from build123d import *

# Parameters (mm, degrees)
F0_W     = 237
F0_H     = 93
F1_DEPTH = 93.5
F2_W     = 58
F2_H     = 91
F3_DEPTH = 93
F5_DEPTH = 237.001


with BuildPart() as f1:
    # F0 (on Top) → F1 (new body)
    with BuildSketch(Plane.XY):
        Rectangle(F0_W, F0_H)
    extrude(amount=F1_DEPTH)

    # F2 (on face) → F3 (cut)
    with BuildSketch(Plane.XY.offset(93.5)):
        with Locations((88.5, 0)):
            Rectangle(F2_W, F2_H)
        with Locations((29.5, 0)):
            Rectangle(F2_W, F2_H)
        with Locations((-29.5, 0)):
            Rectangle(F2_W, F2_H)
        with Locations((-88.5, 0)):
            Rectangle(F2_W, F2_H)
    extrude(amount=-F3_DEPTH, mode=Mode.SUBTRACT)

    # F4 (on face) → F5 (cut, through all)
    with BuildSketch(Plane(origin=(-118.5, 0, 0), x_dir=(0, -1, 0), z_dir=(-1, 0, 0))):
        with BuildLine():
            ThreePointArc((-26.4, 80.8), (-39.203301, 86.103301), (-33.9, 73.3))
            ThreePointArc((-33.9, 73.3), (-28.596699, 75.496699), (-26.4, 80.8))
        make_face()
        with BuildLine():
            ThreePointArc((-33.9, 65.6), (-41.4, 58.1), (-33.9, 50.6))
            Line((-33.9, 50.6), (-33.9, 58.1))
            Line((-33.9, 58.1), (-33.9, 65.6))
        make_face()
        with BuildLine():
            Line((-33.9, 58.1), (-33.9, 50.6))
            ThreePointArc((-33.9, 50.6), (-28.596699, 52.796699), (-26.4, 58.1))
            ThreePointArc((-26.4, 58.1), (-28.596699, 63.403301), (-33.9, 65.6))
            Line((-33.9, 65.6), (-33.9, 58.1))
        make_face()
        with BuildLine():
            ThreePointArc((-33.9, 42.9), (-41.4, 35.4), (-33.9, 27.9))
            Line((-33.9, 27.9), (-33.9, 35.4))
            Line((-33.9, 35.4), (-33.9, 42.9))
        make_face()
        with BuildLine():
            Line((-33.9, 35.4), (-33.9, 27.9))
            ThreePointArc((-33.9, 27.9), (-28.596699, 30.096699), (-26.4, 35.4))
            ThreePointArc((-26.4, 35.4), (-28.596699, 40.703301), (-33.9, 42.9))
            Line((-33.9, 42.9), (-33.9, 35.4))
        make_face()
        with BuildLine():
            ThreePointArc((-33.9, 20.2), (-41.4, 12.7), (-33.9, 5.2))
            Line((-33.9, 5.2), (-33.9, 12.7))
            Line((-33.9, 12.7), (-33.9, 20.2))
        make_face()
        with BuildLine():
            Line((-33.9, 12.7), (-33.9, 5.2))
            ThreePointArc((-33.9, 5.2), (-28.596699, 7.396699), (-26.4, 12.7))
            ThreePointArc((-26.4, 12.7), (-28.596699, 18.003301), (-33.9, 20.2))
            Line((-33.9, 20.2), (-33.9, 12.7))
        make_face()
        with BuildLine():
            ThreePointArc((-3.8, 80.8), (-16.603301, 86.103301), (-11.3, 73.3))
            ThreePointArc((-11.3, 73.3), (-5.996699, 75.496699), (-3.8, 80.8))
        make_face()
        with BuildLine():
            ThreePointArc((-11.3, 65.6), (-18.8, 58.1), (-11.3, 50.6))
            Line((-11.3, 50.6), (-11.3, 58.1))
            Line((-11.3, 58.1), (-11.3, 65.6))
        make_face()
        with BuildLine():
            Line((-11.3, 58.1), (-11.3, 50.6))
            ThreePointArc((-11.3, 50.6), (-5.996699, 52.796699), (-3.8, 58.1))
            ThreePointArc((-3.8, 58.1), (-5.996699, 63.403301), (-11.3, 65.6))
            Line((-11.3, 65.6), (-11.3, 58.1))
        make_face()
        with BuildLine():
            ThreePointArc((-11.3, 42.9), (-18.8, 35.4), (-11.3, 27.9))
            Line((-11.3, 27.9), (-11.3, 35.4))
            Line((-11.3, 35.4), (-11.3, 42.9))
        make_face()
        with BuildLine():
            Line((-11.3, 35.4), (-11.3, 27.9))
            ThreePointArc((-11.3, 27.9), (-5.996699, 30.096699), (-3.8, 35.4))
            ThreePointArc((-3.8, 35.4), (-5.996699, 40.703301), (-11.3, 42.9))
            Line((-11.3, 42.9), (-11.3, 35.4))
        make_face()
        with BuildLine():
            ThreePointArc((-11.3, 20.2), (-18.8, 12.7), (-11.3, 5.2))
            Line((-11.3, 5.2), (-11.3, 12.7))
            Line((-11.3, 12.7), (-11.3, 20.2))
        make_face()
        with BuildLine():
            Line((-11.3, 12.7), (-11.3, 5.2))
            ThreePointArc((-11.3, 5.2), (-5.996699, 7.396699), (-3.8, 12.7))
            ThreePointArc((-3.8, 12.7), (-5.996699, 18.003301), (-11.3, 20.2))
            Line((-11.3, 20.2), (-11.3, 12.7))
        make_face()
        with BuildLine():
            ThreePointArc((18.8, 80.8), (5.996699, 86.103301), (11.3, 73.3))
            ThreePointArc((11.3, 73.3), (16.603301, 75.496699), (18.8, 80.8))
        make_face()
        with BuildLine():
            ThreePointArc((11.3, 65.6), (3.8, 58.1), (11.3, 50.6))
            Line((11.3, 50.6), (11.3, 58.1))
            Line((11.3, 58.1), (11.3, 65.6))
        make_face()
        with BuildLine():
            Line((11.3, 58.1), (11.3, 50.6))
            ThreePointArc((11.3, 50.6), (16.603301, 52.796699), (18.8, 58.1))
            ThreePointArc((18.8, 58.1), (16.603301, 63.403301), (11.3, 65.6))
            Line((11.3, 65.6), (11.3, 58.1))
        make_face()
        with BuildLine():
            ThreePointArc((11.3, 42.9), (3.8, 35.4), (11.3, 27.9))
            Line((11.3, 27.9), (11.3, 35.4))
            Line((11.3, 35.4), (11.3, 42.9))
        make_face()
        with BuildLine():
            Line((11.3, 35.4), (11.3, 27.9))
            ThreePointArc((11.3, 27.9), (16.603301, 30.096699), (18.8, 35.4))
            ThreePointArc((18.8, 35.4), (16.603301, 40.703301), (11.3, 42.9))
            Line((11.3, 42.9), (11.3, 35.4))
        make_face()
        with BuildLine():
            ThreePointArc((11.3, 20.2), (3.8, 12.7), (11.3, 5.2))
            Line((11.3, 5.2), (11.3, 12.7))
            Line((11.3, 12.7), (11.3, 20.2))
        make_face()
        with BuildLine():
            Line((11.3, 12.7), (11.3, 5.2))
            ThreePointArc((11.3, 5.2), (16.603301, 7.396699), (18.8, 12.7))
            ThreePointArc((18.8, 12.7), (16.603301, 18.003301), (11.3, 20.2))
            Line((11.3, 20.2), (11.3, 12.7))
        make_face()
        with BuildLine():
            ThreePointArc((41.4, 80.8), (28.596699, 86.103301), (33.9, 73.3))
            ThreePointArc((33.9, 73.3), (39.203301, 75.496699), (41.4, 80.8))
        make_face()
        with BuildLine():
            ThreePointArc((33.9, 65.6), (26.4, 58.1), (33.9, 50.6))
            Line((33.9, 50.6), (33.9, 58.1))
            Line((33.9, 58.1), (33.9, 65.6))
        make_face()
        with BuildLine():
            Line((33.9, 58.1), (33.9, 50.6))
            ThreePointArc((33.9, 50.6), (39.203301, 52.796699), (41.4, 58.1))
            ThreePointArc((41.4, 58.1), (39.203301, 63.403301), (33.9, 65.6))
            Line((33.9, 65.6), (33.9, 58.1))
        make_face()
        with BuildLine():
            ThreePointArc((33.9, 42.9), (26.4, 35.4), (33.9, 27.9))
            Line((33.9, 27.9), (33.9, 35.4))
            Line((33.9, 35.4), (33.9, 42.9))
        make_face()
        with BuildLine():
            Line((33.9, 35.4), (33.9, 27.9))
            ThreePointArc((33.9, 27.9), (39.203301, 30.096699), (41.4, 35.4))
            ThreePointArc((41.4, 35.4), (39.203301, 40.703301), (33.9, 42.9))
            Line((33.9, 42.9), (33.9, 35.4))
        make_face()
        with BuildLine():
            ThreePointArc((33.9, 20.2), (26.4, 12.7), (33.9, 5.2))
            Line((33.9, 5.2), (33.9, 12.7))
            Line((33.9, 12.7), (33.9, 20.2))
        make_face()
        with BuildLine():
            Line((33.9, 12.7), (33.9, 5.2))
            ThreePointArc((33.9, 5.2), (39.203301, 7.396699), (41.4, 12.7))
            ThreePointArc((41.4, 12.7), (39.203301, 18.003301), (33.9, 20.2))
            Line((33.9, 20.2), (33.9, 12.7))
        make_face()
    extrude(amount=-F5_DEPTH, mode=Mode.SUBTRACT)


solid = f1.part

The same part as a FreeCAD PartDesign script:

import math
import FreeCAD as App
import Part
import Sketcher

V = App.Vector
Q = App.Units.Quantity

doc = App.newDocument("Part")
body = doc.addObject("PartDesign::Body", "Body")

sketch1 = doc.addObject("Sketcher::SketchObject", "Sketch")
body.addObject(sketch1)
sketch1.AttachmentSupport = (doc.XY_Plane, [""])
sketch1.MapMode = "FlatFace"
sketch1.addGeometry(Part.LineSegment(V(-118, 46, 0), V(-118, -46, 0)), False)
sketch1.addGeometry(Part.LineSegment(V(-118, -46, 0), V(118, -46, 0)), False)
sketch1.addGeometry(Part.LineSegment(V(118, -46, 0), V(118, 46, 0)), False)
sketch1.addGeometry(Part.LineSegment(V(118, 46, 0), V(-118, 46, 0)), False)
sketch1.addConstraint(Sketcher.Constraint("Coincident", 0, 2, 1, 1))
sketch1.addConstraint(Sketcher.Constraint("Coincident", 1, 2, 2, 1))
sketch1.addConstraint(Sketcher.Constraint("Coincident", 2, 2, 3, 1))
sketch1.addConstraint(Sketcher.Constraint("Coincident", 3, 2, 0, 1))
sketch1.addConstraint(Sketcher.Constraint("Vertical", 0))
sketch1.addConstraint(Sketcher.Constraint("Horizontal", 1))
sketch1.addConstraint(Sketcher.Constraint("Vertical", 2))
sketch1.addConstraint(Sketcher.Constraint("Horizontal", 3))
sketch1.addConstraint(Sketcher.Constraint("Symmetric", 0, 2, 2, 2, -1, 1))
sketch1.addConstraint(Sketcher.Constraint("DistanceX", 1, 1, 1, 2, Q("237 mm")))
sketch1.addConstraint(Sketcher.Constraint("DistanceY", 0, 2, 0, 1, Q("93 mm")))
pad1 = doc.addObject("PartDesign::Pad", "Pad")
body.addObject(pad1)
pad1.Profile = sketch1
pad1.Length = 93.5

sketch2 = doc.addObject("Sketcher::SketchObject", "Sketch001")
body.addObject(sketch2)
sketch2.AttachmentSupport = (doc.XY_Plane, [""])
sketch2.MapMode = "FlatFace"
sketch2.AttachmentOffset = App.Placement(V(0, 0, 93.5), App.Rotation())
sketch2.addGeometry(Part.LineSegment(V(60, 46, 0), V(60, -46, 0)), False)
sketch2.addGeometry(Part.LineSegment(V(60, -46, 0), V(118, -46, 0)), False)
sketch2.addGeometry(Part.LineSegment(V(118, -46, 0), V(118, 46, 0)), False)
sketch2.addGeometry(Part.LineSegment(V(118, 46, 0), V(60, 46, 0)), False)
sketch2.addGeometry(Part.LineSegment(V(0, 46, 0), V(0, -46, 0)), False)
sketch2.addGeometry(Part.LineSegment(V(0, -46, 0), V(58, -46, 0)), False)
sketch2.addGeometry(Part.LineSegment(V(58, -46, 0), V(58, 46, 0)), False)
sketch2.addGeometry(Part.LineSegment(V(58, 46, 0), V(0, 46, 0)), False)
sketch2.addGeometry(Part.LineSegment(V(-58, 46, 0), V(-58, -46, 0)), False)
sketch2.addGeometry(Part.LineSegment(V(-58, -46, 0), V(0, -46, 0)), False)
sketch2.addGeometry(Part.LineSegment(V(0, -46, 0), V(0, 46, 0)), False)
sketch2.addGeometry(Part.LineSegment(V(0, 46, 0), V(-58, 46, 0)), False)
sketch2.addGeometry(Part.LineSegment(V(-118, 46, 0), V(-118, -46, 0)), False)
sketch2.addGeometry(Part.LineSegment(V(-118, -46, 0), V(-60, -46, 0)), False)
sketch2.addGeometry(Part.LineSegment(V(-60, -46, 0), V(-60, 46, 0)), False)
sketch2.addGeometry(Part.LineSegment(V(-60, 46, 0), V(-118, 46, 0)), False)
sketch2.addConstraint(Sketcher.Constraint("Coincident", 0, 2, 1, 1))
sketch2.addConstraint(Sketcher.Constraint("Coincident", 1, 2, 2, 1))
sketch2.addConstraint(Sketcher.Constraint("Coincident", 2, 2, 3, 1))
sketch2.addConstraint(Sketcher.Constraint("Coincident", 3, 2, 0, 1))
sketch2.addConstraint(Sketcher.Constraint("Coincident", 4, 2, 5, 1))
sketch2.addConstraint(Sketcher.Constraint("Coincident", 5, 2, 6, 1))
sketch2.addConstraint(Sketcher.Constraint("Coincident", 6, 2, 7, 1))
sketch2.addConstraint(Sketcher.Constraint("Coincident", 7, 2, 4, 1))
sketch2.addConstraint(Sketcher.Constraint("Coincident", 8, 2, 9, 1))
sketch2.addConstraint(Sketcher.Constraint("Coincident", 9, 2, 10, 1))
sketch2.addConstraint(Sketcher.Constraint("Coincident", 10, 2, 11, 1))
sketch2.addConstraint(Sketcher.Constraint("Coincident", 11, 2, 8, 1))
sketch2.addConstraint(Sketcher.Constraint("Coincident", 12, 2, 13, 1))
sketch2.addConstraint(Sketcher.Constraint("Coincident", 13, 2, 14, 1))
sketch2.addConstraint(Sketcher.Constraint("Coincident", 14, 2, 15, 1))
sketch2.addConstraint(Sketcher.Constraint("Coincident", 15, 2, 12, 1))
sketch2.addConstraint(Sketcher.Constraint("Vertical", 0))
sketch2.addConstraint(Sketcher.Constraint("Horizontal", 1))
sketch2.addConstraint(Sketcher.Constraint("Vertical", 2))
sketch2.addConstraint(Sketcher.Constraint("Horizontal", 3))
sketch2.addConstraint(Sketcher.Constraint("Vertical", 4))
sketch2.addConstraint(Sketcher.Constraint("Horizontal", 5))
sketch2.addConstraint(Sketcher.Constraint("Vertical", 6))
sketch2.addConstraint(Sketcher.Constraint("Horizontal", 7))
sketch2.addConstraint(Sketcher.Constraint("Vertical", 8))
sketch2.addConstraint(Sketcher.Constraint("Horizontal", 9))
sketch2.addConstraint(Sketcher.Constraint("Vertical", 10))
sketch2.addConstraint(Sketcher.Constraint("Horizontal", 11))
sketch2.addConstraint(Sketcher.Constraint("Vertical", 12))
sketch2.addConstraint(Sketcher.Constraint("Horizontal", 13))
sketch2.addConstraint(Sketcher.Constraint("Vertical", 14))
sketch2.addConstraint(Sketcher.Constraint("Horizontal", 15))
sketch2.addConstraint(Sketcher.Constraint("Symmetric", 6, 2, 8, 2, -1, 1))
sketch2.addConstraint(Sketcher.Constraint("Symmetric", 4, 2, 10, 2, -1, 1))
sketch2.addConstraint(Sketcher.Constraint("Symmetric", 2, 2, 12, 2, -1, 1))
sketch2.addConstraint(Sketcher.Constraint("Symmetric", 0, 2, 14, 2, -1, 1))
sketch2.addConstraint(Sketcher.Constraint("Horizontal", 1, 2, 4, 2))
sketch2.addConstraint(Sketcher.Constraint("Horizontal", 3, 2, 6, 2))
sketch2.addConstraint(Sketcher.Constraint("Horizontal", 5, 2, 8, 2))
sketch2.addConstraint(Sketcher.Constraint("Equal", 3, 5))
sketch2.addConstraint(Sketcher.Constraint("DistanceX", 1, 1, 1, 2, Q("58 mm")))
sketch2.addConstraint(Sketcher.Constraint("DistanceY", 0, 2, 0, 1, Q("91 mm")))
sketch2.addConstraint(Sketcher.Constraint("DistanceX", 4, 2, 0, 2, Q("59 mm")))
sketch2.addConstraint(Sketcher.Constraint("DistanceX", 8, 2, 4, 2, Q("59 mm")))
pocket1 = doc.addObject("PartDesign::Pocket", "Pocket")
body.addObject(pocket1)
pocket1.Profile = sketch2
pocket1.Length = 93

sketch3 = doc.addObject("Sketcher::SketchObject", "Sketch002")
body.addObject(sketch3)
sketch3.AttachmentSupport = (doc.YZ_Plane, [""])
sketch3.MapMode = "FlatFace"
sketch3.AttachmentOffset = App.Placement(V(0, 0, -118.5), App.Rotation())
sketch3.addGeometry(Part.ArcOfCircle(Part.Circle(V(34, 81, 0), V(0, 0, 1), 8), math.radians(-90), math.radians(180)), False)
sketch3.addGeometry(Part.ArcOfCircle(Part.Circle(V(34, 81, 0), V(0, 0, 1), 7), math.radians(180), math.radians(270)), False)
sketch3.addGeometry(Part.ArcOfCircle(Part.Circle(V(34, 58, 0), V(0, 0, 1), 8), math.radians(-90), math.radians(90)), False)
sketch3.addGeometry(Part.ArcOfCircle(Part.Circle(V(34, 58, 0), V(0, 0, 1), 7), math.radians(180), math.radians(270)), False)
sketch3.addGeometry(Part.ArcOfCircle(Part.Circle(V(34, 58, 0), V(0, 0, 1), 7), math.radians(90), math.radians(180)), False)
sketch3.addGeometry(Part.ArcOfCircle(Part.Circle(V(34, 35, 0), V(0, 0, 1), 8), math.radians(-90), math.radians(90)), False)
sketch3.addGeometry(Part.ArcOfCircle(Part.Circle(V(34, 35, 0), V(0, 0, 1), 7), math.radians(180), math.radians(270)), False)
sketch3.addGeometry(Part.ArcOfCircle(Part.Circle(V(34, 35, 0), V(0, 0, 1), 7), math.radians(90), math.radians(180)), False)
sketch3.addGeometry(Part.ArcOfCircle(Part.Circle(V(34, 13, 0), V(0, 0, 1), 8), math.radians(-90), math.radians(90)), False)
sketch3.addGeometry(Part.ArcOfCircle(Part.Circle(V(34, 13, 0), V(0, 0, 1), 7), math.radians(180), math.radians(270)), False)
sketch3.addGeometry(Part.ArcOfCircle(Part.Circle(V(34, 13, 0), V(0, 0, 1), 7), math.radians(90), math.radians(180)), False)
sketch3.addGeometry(Part.ArcOfCircle(Part.Circle(V(11, 81, 0), V(0, 0, 1), 8), math.radians(-90), math.radians(180)), False)
sketch3.addGeometry(Part.ArcOfCircle(Part.Circle(V(11, 81, 0), V(0, 0, 1), 7), math.radians(180), math.radians(270)), False)
sketch3.addGeometry(Part.ArcOfCircle(Part.Circle(V(11, 58, 0), V(0, 0, 1), 8), math.radians(-90), math.radians(90)), False)
sketch3.addGeometry(Part.ArcOfCircle(Part.Circle(V(11, 58, 0), V(0, 0, 1), 7), math.radians(180), math.radians(270)), False)
sketch3.addGeometry(Part.ArcOfCircle(Part.Circle(V(11, 58, 0), V(0, 0, 1), 7), math.radians(90), math.radians(180)), False)
sketch3.addGeometry(Part.ArcOfCircle(Part.Circle(V(11, 35, 0), V(0, 0, 1), 8), math.radians(-90), math.radians(90)), False)
sketch3.addGeometry(Part.ArcOfCircle(Part.Circle(V(11, 35, 0), V(0, 0, 1), 7), math.radians(180), math.radians(270)), False)
sketch3.addGeometry(Part.ArcOfCircle(Part.Circle(V(11, 35, 0), V(0, 0, 1), 7), math.radians(90), math.radians(180)), False)
sketch3.addGeometry(Part.ArcOfCircle(Part.Circle(V(11, 13, 0), V(0, 0, 1), 8), math.radians(-90), math.radians(90)), False)
sketch3.addGeometry(Part.ArcOfCircle(Part.Circle(V(11, 13, 0), V(0, 0, 1), 7), math.radians(180), math.radians(270)), False)
sketch3.addGeometry(Part.ArcOfCircle(Part.Circle(V(11, 13, 0), V(0, 0, 1), 7), math.radians(90), math.radians(180)), False)
sketch3.addGeometry(Part.ArcOfCircle(Part.Circle(V(-11, 81, 0), V(0, 0, 1), 8), math.radians(-90), math.radians(180)), False)
sketch3.addGeometry(Part.ArcOfCircle(Part.Circle(V(-11, 81, 0), V(0, 0, 1), 7), math.radians(180), math.radians(270)), False)
sketch3.addGeometry(Part.ArcOfCircle(Part.Circle(V(-11, 58, 0), V(0, 0, 1), 8), math.radians(-90), math.radians(90)), False)
sketch3.addGeometry(Part.ArcOfCircle(Part.Circle(V(-11, 58, 0), V(0, 0, 1), 7), math.radians(180), math.radians(270)), False)
sketch3.addGeometry(Part.ArcOfCircle(Part.Circle(V(-11, 58, 0), V(0, 0, 1), 7), math.radians(90), math.radians(180)), False)
sketch3.addGeometry(Part.ArcOfCircle(Part.Circle(V(-11, 35, 0), V(0, 0, 1), 8), math.radians(-90), math.radians(90)), False)
sketch3.addGeometry(Part.ArcOfCircle(Part.Circle(V(-11, 35, 0), V(0, 0, 1), 7), math.radians(180), math.radians(270)), False)
sketch3.addGeometry(Part.ArcOfCircle(Part.Circle(V(-11, 35, 0), V(0, 0, 1), 7), math.radians(90), math.radians(180)), False)
sketch3.addGeometry(Part.ArcOfCircle(Part.Circle(V(-11, 13, 0), V(0, 0, 1), 8), math.radians(-90), math.radians(90)), False)
sketch3.addGeometry(Part.ArcOfCircle(Part.Circle(V(-11, 13, 0), V(0, 0, 1), 7), math.radians(180), math.radians(270)), False)
sketch3.addGeometry(Part.ArcOfCircle(Part.Circle(V(-11, 13, 0), V(0, 0, 1), 7), math.radians(90), math.radians(180)), False)
sketch3.addGeometry(Part.ArcOfCircle(Part.Circle(V(-34, 81, 0), V(0, 0, 1), 8), math.radians(-90), math.radians(180)), False)
sketch3.addGeometry(Part.ArcOfCircle(Part.Circle(V(-34, 81, 0), V(0, 0, 1), 7), math.radians(180), math.radians(270)), False)
sketch3.addGeometry(Part.ArcOfCircle(Part.Circle(V(-34, 58, 0), V(0, 0, 1), 8), math.radians(-90), math.radians(90)), False)
sketch3.addGeometry(Part.ArcOfCircle(Part.Circle(V(-34, 58, 0), V(0, 0, 1), 7), math.radians(180), math.radians(270)), False)
sketch3.addGeometry(Part.ArcOfCircle(Part.Circle(V(-34, 58, 0), V(0, 0, 1), 7), math.radians(90), math.radians(180)), False)
sketch3.addGeometry(Part.ArcOfCircle(Part.Circle(V(-34, 35, 0), V(0, 0, 1), 8), math.radians(-90), math.radians(90)), False)
sketch3.addGeometry(Part.ArcOfCircle(Part.Circle(V(-34, 35, 0), V(0, 0, 1), 7), math.radians(180), math.radians(270)), False)
sketch3.addGeometry(Part.ArcOfCircle(Part.Circle(V(-34, 35, 0), V(0, 0, 1), 7), math.radians(90), math.radians(180)), False)
sketch3.addGeometry(Part.ArcOfCircle(Part.Circle(V(-34, 13, 0), V(0, 0, 1), 8), math.radians(-90), math.radians(90)), False)
sketch3.addGeometry(Part.ArcOfCircle(Part.Circle(V(-34, 13, 0), V(0, 0, 1), 7), math.radians(180), math.radians(270)), False)
sketch3.addGeometry(Part.ArcOfCircle(Part.Circle(V(-34, 13, 0), V(0, 0, 1), 7), math.radians(90), math.radians(180)), False)
sketch3.addConstraint(Sketcher.Constraint("Tangent", 0, 1, 1, 2))
sketch3.addConstraint(Sketcher.Constraint("Coincident", 1, 1, 0, 2))
sketch3.addConstraint(Sketcher.Constraint("Tangent", 2, 1, 3, 2))
sketch3.addConstraint(Sketcher.Constraint("Tangent", 3, 1, 4, 2))
sketch3.addConstraint(Sketcher.Constraint("Tangent", 4, 1, 2, 2))
sketch3.addConstraint(Sketcher.Constraint("Tangent", 5, 1, 6, 2))
sketch3.addConstraint(Sketcher.Constraint("Tangent", 6, 1, 7, 2))
sketch3.addConstraint(Sketcher.Constraint("Tangent", 7, 1, 5, 2))
sketch3.addConstraint(Sketcher.Constraint("Tangent", 8, 1, 9, 2))
sketch3.addConstraint(Sketcher.Constraint("Tangent", 9, 1, 10, 2))
sketch3.addConstraint(Sketcher.Constraint("Tangent", 10, 1, 8, 2))
sketch3.addConstraint(Sketcher.Constraint("Tangent", 11, 1, 12, 2))
sketch3.addConstraint(Sketcher.Constraint("Coincident", 12, 1, 11, 2))
sketch3.addConstraint(Sketcher.Constraint("Tangent", 13, 1, 14, 2))
sketch3.addConstraint(Sketcher.Constraint("Tangent", 14, 1, 15, 2))
sketch3.addConstraint(Sketcher.Constraint("Tangent", 15, 1, 13, 2))
sketch3.addConstraint(Sketcher.Constraint("Tangent", 16, 1, 17, 2))
sketch3.addConstraint(Sketcher.Constraint("Tangent", 17, 1, 18, 2))
sketch3.addConstraint(Sketcher.Constraint("Tangent", 18, 1, 16, 2))
sketch3.addConstraint(Sketcher.Constraint("Tangent", 19, 1, 20, 2))
sketch3.addConstraint(Sketcher.Constraint("Tangent", 20, 1, 21, 2))
sketch3.addConstraint(Sketcher.Constraint("Tangent", 21, 1, 19, 2))
sketch3.addConstraint(Sketcher.Constraint("Tangent", 22, 1, 23, 2))
sketch3.addConstraint(Sketcher.Constraint("Coincident", 23, 1, 22, 2))
sketch3.addConstraint(Sketcher.Constraint("Tangent", 24, 1, 25, 2))
sketch3.addConstraint(Sketcher.Constraint("Tangent", 25, 1, 26, 2))
sketch3.addConstraint(Sketcher.Constraint("Tangent", 26, 1, 24, 2))
sketch3.addConstraint(Sketcher.Constraint("Tangent", 27, 1, 28, 2))
sketch3.addConstraint(Sketcher.Constraint("Tangent", 28, 1, 29, 2))
sketch3.addConstraint(Sketcher.Constraint("Tangent", 29, 1, 27, 2))
sketch3.addConstraint(Sketcher.Constraint("Tangent", 30, 1, 31, 2))
sketch3.addConstraint(Sketcher.Constraint("Tangent", 31, 1, 32, 2))
sketch3.addConstraint(Sketcher.Constraint("Tangent", 32, 1, 30, 2))
sketch3.addConstraint(Sketcher.Constraint("Tangent", 33, 1, 34, 2))
sketch3.addConstraint(Sketcher.Constraint("Coincident", 34, 1, 33, 2))
sketch3.addConstraint(Sketcher.Constraint("Tangent", 35, 1, 36, 2))
sketch3.addConstraint(Sketcher.Constraint("Tangent", 36, 1, 37, 2))
sketch3.addConstraint(Sketcher.Constraint("Tangent", 37, 1, 35, 2))
sketch3.addConstraint(Sketcher.Constraint("Tangent", 38, 1, 39, 2))
sketch3.addConstraint(Sketcher.Constraint("Tangent", 39, 1, 40, 2))
sketch3.addConstraint(Sketcher.Constraint("Tangent", 40, 1, 38, 2))
sketch3.addConstraint(Sketcher.Constraint("Tangent", 41, 1, 42, 2))
sketch3.addConstraint(Sketcher.Constraint("Tangent", 42, 1, 43, 2))
sketch3.addConstraint(Sketcher.Constraint("Tangent", 43, 1, 41, 2))
sketch3.addConstraint(Sketcher.Constraint("Equal", 1, 2))
sketch3.addConstraint(Sketcher.Constraint("Equal", 4, 5))
sketch3.addConstraint(Sketcher.Constraint("Equal", 7, 8))
sketch3.addConstraint(Sketcher.Constraint("Equal", 10, 11))
sketch3.addConstraint(Sketcher.Constraint("Equal", 12, 13))
sketch3.addConstraint(Sketcher.Constraint("Equal", 15, 16))
sketch3.addConstraint(Sketcher.Constraint("Equal", 18, 19))
sketch3.addConstraint(Sketcher.Constraint("Equal", 21, 22))
sketch3.addConstraint(Sketcher.Constraint("Equal", 23, 24))
sketch3.addConstraint(Sketcher.Constraint("Equal", 26, 27))
sketch3.addConstraint(Sketcher.Constraint("Equal", 29, 30))
sketch3.addConstraint(Sketcher.Constraint("Equal", 32, 33))
sketch3.addConstraint(Sketcher.Constraint("Equal", 34, 35))
sketch3.addConstraint(Sketcher.Constraint("Equal", 37, 38))
sketch3.addConstraint(Sketcher.Constraint("Equal", 40, 41))
sketch3.addConstraint(Sketcher.Constraint("Symmetric", 11, 3, 22, 3, -2))
sketch3.addConstraint(Sketcher.Constraint("Symmetric", 13, 3, 24, 3, -2))
sketch3.addConstraint(Sketcher.Constraint("Symmetric", 16, 3, 27, 3, -2))
sketch3.addConstraint(Sketcher.Constraint("Symmetric", 19, 3, 30, 3, -2))
sketch3.addConstraint(Sketcher.Constraint("Symmetric", 0, 3, 33, 3, -2))
sketch3.addConstraint(Sketcher.Constraint("Symmetric", 2, 3, 35, 3, -2))
sketch3.addConstraint(Sketcher.Constraint("Symmetric", 5, 3, 38, 3, -2))
sketch3.addConstraint(Sketcher.Constraint("Symmetric", 8, 3, 41, 3, -2))
sketch3.addConstraint(Sketcher.Constraint("Horizontal", 1, 3, 11, 3))
sketch3.addConstraint(Sketcher.Constraint("Horizontal", 4, 3, 13, 3))
sketch3.addConstraint(Sketcher.Constraint("Horizontal", 7, 3, 16, 3))
sketch3.addConstraint(Sketcher.Constraint("Horizontal", 10, 3, 19, 3))
sketch3.addConstraint(Sketcher.Constraint("Horizontal", 34, 3, 1, 1))
sketch3.addConstraint(Sketcher.Constraint("Horizontal", 37, 3, 3, 1))
sketch3.addConstraint(Sketcher.Constraint("Horizontal", 40, 3, 6, 1))
sketch3.addConstraint(Sketcher.Constraint("Horizontal", 43, 3, 9, 1))
sketch3.addConstraint(Sketcher.Constraint("Horizontal", 1, 1, 12, 1))
sketch3.addConstraint(Sketcher.Constraint("Horizontal", 3, 1, 14, 1))
sketch3.addConstraint(Sketcher.Constraint("Horizontal", 6, 1, 17, 1))
sketch3.addConstraint(Sketcher.Constraint("Horizontal", 9, 1, 20, 1))
sketch3.addConstraint(Sketcher.Constraint("Horizontal", 12, 1, 23, 1))
sketch3.addConstraint(Sketcher.Constraint("Horizontal", 14, 1, 25, 1))
sketch3.addConstraint(Sketcher.Constraint("Horizontal", 17, 1, 28, 1))
sketch3.addConstraint(Sketcher.Constraint("Horizontal", 20, 1, 31, 1))
sketch3.addConstraint(Sketcher.Constraint("Horizontal", 23, 1, 34, 1))
sketch3.addConstraint(Sketcher.Constraint("Horizontal", 25, 1, 36, 1))
sketch3.addConstraint(Sketcher.Constraint("Horizontal", 28, 1, 39, 1))
sketch3.addConstraint(Sketcher.Constraint("Horizontal", 31, 1, 42, 1))
sketch3.addConstraint(Sketcher.Constraint("Vertical", 1, 3, 2, 3))
sketch3.addConstraint(Sketcher.Constraint("Vertical", 4, 3, 5, 3))
sketch3.addConstraint(Sketcher.Constraint("Vertical", 7, 3, 8, 3))
sketch3.addConstraint(Sketcher.Constraint("Vertical", 12, 3, 13, 3))
sketch3.addConstraint(Sketcher.Constraint("Vertical", 15, 3, 16, 3))
sketch3.addConstraint(Sketcher.Constraint("Vertical", 18, 3, 19, 3))
sketch3.addConstraint(Sketcher.Constraint("Vertical", 10, 3, 0, 1))
sketch3.addConstraint(Sketcher.Constraint("Vertical", 0, 1, 2, 1))
sketch3.addConstraint(Sketcher.Constraint("Vertical", 2, 1, 4, 1))
sketch3.addConstraint(Sketcher.Constraint("Vertical", 4, 1, 5, 1))
sketch3.addConstraint(Sketcher.Constraint("Vertical", 5, 1, 7, 1))
sketch3.addConstraint(Sketcher.Constraint("Vertical", 7, 1, 8, 1))
sketch3.addConstraint(Sketcher.Constraint("Vertical", 8, 1, 10, 1))
sketch3.addConstraint(Sketcher.Constraint("Vertical", 21, 3, 11, 1))
sketch3.addConstraint(Sketcher.Constraint("Vertical", 11, 1, 13, 1))
sketch3.addConstraint(Sketcher.Constraint("Vertical", 13, 1, 15, 1))
sketch3.addConstraint(Sketcher.Constraint("Vertical", 15, 1, 16, 1))
sketch3.addConstraint(Sketcher.Constraint("Vertical", 16, 1, 18, 1))
sketch3.addConstraint(Sketcher.Constraint("Vertical", 18, 1, 19, 1))
sketch3.addConstraint(Sketcher.Constraint("Vertical", 19, 1, 21, 1))
sketch3.addConstraint(Sketcher.Constraint("Vertical", 32, 3, 22, 1))
sketch3.addConstraint(Sketcher.Constraint("Vertical", 22, 1, 24, 1))
sketch3.addConstraint(Sketcher.Constraint("Vertical", 24, 1, 26, 1))
sketch3.addConstraint(Sketcher.Constraint("Vertical", 26, 1, 27, 1))
sketch3.addConstraint(Sketcher.Constraint("Vertical", 27, 1, 29, 1))
sketch3.addConstraint(Sketcher.Constraint("Vertical", 29, 1, 30, 1))
sketch3.addConstraint(Sketcher.Constraint("Vertical", 30, 1, 32, 1))
sketch3.addConstraint(Sketcher.Constraint("Vertical", 43, 3, 33, 1))
sketch3.addConstraint(Sketcher.Constraint("Vertical", 33, 1, 35, 1))
sketch3.addConstraint(Sketcher.Constraint("Vertical", 35, 1, 37, 1))
sketch3.addConstraint(Sketcher.Constraint("Vertical", 37, 1, 38, 1))
sketch3.addConstraint(Sketcher.Constraint("Vertical", 38, 1, 40, 1))
sketch3.addConstraint(Sketcher.Constraint("Vertical", 40, 1, 41, 1))
sketch3.addConstraint(Sketcher.Constraint("Vertical", 41, 1, 43, 1))
sketch3.addConstraint(Sketcher.Constraint("Radius", 0, Q("7.5 mm")))
sketch3.addConstraint(Sketcher.Constraint("DistanceX", -1, 1, 0, 3, Q("33.9 mm")))
sketch3.addConstraint(Sketcher.Constraint("DistanceY", -1, 1, 0, 3, Q("80.8 mm")))
sketch3.addConstraint(Sketcher.Constraint("DistanceY", -1, 1, 2, 3, Q("58.1 mm")))
sketch3.addConstraint(Sketcher.Constraint("DistanceY", -1, 1, 5, 3, Q("35.4 mm")))
sketch3.addConstraint(Sketcher.Constraint("DistanceY", -1, 1, 8, 3, Q("12.7 mm")))
sketch3.addConstraint(Sketcher.Constraint("DistanceX", -1, 1, 11, 3, Q("11.3 mm")))
pocket2 = doc.addObject("PartDesign::Pocket", "Pocket001")
body.addObject(pocket2)
pocket2.Profile = sketch3
pocket2.Type = "ThroughAll"
pocket2.Reversed = True

doc.recompute()
